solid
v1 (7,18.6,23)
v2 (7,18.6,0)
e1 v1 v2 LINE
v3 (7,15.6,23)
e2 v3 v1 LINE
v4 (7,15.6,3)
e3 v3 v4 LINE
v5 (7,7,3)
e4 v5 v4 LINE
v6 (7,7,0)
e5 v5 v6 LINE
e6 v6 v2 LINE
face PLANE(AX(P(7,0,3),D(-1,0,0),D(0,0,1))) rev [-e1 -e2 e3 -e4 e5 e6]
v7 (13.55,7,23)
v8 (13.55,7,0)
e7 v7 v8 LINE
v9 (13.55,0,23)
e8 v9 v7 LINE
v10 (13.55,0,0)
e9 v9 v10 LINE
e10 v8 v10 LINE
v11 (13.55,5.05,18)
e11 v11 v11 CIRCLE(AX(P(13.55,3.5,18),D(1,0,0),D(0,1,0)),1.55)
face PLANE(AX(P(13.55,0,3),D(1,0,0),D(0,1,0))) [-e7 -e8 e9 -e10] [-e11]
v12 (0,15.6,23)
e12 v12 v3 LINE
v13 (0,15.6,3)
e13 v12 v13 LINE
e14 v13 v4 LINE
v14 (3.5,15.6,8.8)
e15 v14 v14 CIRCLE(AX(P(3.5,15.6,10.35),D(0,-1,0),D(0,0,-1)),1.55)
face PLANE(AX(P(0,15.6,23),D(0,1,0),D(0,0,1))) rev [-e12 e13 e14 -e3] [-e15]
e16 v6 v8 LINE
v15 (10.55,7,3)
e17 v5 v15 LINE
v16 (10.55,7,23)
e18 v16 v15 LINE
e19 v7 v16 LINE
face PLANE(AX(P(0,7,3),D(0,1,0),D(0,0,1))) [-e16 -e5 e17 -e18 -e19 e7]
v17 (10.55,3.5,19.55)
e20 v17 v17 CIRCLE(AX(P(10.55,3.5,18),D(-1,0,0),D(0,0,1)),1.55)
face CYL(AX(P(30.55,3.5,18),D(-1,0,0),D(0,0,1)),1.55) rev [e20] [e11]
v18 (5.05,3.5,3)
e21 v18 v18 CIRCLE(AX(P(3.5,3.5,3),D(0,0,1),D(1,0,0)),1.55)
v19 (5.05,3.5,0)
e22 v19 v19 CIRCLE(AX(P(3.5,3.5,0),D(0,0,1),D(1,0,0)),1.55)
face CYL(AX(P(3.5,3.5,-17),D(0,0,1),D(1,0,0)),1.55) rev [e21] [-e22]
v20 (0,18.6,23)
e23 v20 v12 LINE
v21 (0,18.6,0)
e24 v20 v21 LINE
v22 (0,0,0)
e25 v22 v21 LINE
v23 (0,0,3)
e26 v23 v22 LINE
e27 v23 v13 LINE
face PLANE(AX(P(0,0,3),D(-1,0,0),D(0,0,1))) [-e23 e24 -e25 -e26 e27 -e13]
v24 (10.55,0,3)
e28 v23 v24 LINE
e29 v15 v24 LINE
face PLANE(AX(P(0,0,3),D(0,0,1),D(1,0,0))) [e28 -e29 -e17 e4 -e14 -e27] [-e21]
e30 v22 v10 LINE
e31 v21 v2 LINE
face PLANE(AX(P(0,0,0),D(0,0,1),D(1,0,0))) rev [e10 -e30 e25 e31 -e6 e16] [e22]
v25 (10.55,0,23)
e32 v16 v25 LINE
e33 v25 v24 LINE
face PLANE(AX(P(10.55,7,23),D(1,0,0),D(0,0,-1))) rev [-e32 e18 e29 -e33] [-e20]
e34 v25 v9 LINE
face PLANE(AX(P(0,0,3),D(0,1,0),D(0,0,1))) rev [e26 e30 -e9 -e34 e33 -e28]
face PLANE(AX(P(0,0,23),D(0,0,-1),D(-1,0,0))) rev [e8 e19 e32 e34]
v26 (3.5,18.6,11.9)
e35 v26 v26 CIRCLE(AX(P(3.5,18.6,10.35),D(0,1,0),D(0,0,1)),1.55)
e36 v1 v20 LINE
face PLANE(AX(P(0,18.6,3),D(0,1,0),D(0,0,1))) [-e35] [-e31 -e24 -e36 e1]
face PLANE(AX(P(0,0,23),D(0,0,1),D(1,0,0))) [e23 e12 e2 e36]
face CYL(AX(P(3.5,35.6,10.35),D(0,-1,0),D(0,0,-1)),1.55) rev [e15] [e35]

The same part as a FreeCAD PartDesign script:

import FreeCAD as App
import Part
import Sketcher

V = App.Vector
Q = App.Units.Quantity

doc = App.newDocument("Part")
params = doc.addObject("Spreadsheet::Sheet", "Params")
for row, (alias, value) in enumerate([
    ("sketch1_width", "7 mm"),
    ("sketch1_height", "18.6 mm"),
    ("sketch1_width2", "13.55 mm"),
    ("pad1_length", "3 mm"),
    ("sketch2_width", "7 mm"),
    ("sketch2_height", "3 mm"),
    ("pad2_length", "20 mm"),
    ("sketch3_width", "3 mm"),
    ("sketch3_height", "7 mm"),
    ("pad3_length", "20 mm"),
    ("sketch4_diameter", "3.1 mm"),
    ("pocket1_length", "20 mm"),
    ("sketch5_diameter", "3.1 mm"),
    ("pocket2_length", "20 mm"),
    ("sketch6_diameter", "3.1 mm"),
    ("pocket3_length", "20 mm"),
], start=1):
    params.set(f"A{row}", alias)
    params.set(f"B{row}", "=" + value)
    params.setAlias(f"B{row}", alias)

body = doc.addObject("PartDesign::Body", "Body")

sketch1 = body.newObject("Sketcher::SketchObject", "Sketch")
sketch1.AttachmentSupport = (doc.getObject("XY_Plane"), [""])
sketch1.MapMode = "FlatFace"
sketch1.addGeometry([
    Part.LineSegment(V(0, 19, 0), V(0, 0, 0)),
    Part.LineSegment(V(0, 0, 0), V(14, 0, 0)),
    Part.LineSegment(V(14, 0, 0), V(14, 7, 0)),
    Part.LineSegment(V(14, 7, 0), V(7, 7, 0)),
    Part.LineSegment(V(7, 7, 0), V(7, 19, 0)),
    Part.LineSegment(V(7, 19, 0), V(0, 19, 0)),
], False)
sketch1.addConstraint([
    Sketcher.Constraint("Coincident", 0, 2, 1, 1),
    Sketcher.Constraint("Coincident", 1, 2, 2, 1),
    Sketcher.Constraint("Coincident", 2, 2, 3, 1),
    Sketcher.Constraint("Coincident", 3, 2, 4, 1),
    Sketcher.Constraint("Coincident", 4, 2, 5, 1),
    Sketcher.Constraint("Coincident", 5, 2, 0, 1),
    Sketcher.Constraint("Vertical", 0),
    Sketcher.Constraint("Horizontal", 1),
    Sketcher.Constraint("Vertical", 2),
    Sketcher.Constraint("Horizontal", 3),
    Sketcher.Constraint("Vertical", 4),
    Sketcher.Constraint("Horizontal", 5),
    Sketcher.Constraint("Coincident", 0, 2, -1, 1),
    Sketcher.Constraint("Equal", 5, 2),
    Sketcher.Constraint("DistanceX", 5, 2, 5, 1, Q("7 mm")),
    Sketcher.Constraint("DistanceY", 0, 2, 0, 1, Q("18.6 mm")),
    Sketcher.Constraint("DistanceX", 1, 1, 1, 2, Q("13.55 mm")),
])
sketch1.setExpression("Constraints[14]", "Params.sketch1_width")
sketch1.setExpression("Constraints[15]", "Params.sketch1_height")
sketch1.setExpression("Constraints[16]", "Params.sketch1_width2")
pad1 = body.newObject("PartDesign::Pad", "Pad")
pad1.Profile = sketch1
pad1.setExpression("Length", "Params.pad1_length")

sketch2 = body.newObject("Sketcher::SketchObject", "Sketch001")
sketch2.AttachmentSupport = (doc.getObject("XY_Plane"), [""])
sketch2.MapMode = "FlatFace"
sketch2.AttachmentOffset = App.Placement(V(0, 0, 3), App.Rotation())
sketch2.addGeometry([
    Part.LineSegment(V(0, 18.6, 0), V(0, 15.6, 0)),
    Part.LineSegment(V(0, 15.6, 0), V(7, 15.6, 0)),
    Part.LineSegment(V(7, 15.6, 0), V(7, 18.6, 0)),
    Part.LineSegment(V(7, 18.6, 0), V(0, 18.6, 0)),
], False)
sketch2.addConstraint([
    Sketcher.Constraint("Coincident", 0, 2, 1, 1),
    Sketcher.Constraint("Coincident", 1, 2, 2, 1),
    Sketcher.Constraint("Coincident", 2, 2, 3, 1),
    Sketcher.Constraint("Coincident", 3, 2, 0, 1),
    Sketcher.Constraint("Vertical", 0),
    Sketcher.Constraint("Horizontal", 1),
    Sketcher.Constraint("Vertical", 2),
    Sketcher.Constraint("Horizontal", 3),
    Sketcher.Constraint("PointOnObject", 0, 2, -2),
    Sketcher.Constraint("DistanceX", 1, 1, 1, 2, Q("7 mm")),
    Sketcher.Constraint("DistanceY", 0, 2, 0, 1, Q("3 mm")),
    Sketcher.Constraint("DistanceY", -1, 1, 0, 2, Q("15.6 mm")),
])
sketch2.setExpression("Constraints[9]", "Params.sketch2_width")
sketch2.setExpression("Constraints[10]", "Params.sketch2_height")
pad2 = body.newObject("PartDesign::Pad", "Pad001")
pad2.Profile = sketch2
pad2.setExpression("Length", "Params.pad2_length")

sketch3 = body.newObject("Sketcher::SketchObject", "Sketch002")
sketch3.AttachmentSupport = (doc.getObject("XY_Plane"), [""])
sketch3.MapMode = "FlatFace"
sketch3.AttachmentOffset = App.Placement(V(0, 0, 3), App.Rotation())
sketch3.addGeometry([
    Part.LineSegment(V(10.6, 7, 0), V(10.6, 0, 0)),
    Part.LineSegment(V(10.6, 0, 0), V(13.6, 0, 0)),
    Part.LineSegment(V(13.6, 0, 0), V(13.6, 7, 0)),
    Part.LineSegment(V(13.6, 7, 0), V(10.6, 7, 0)),
], False)
sketch3.addConstraint([
    Sketcher.Constraint("Coincident", 0, 2, 1, 1),
    Sketcher.Constraint("Coincident", 1, 2, 2, 1),
    Sketcher.Constraint("Coincident", 2, 2, 3, 1),
    Sketcher.Constraint("Coincident", 3, 2, 0, 1),
    Sketcher.Constraint("Vertical", 0),
    Sketcher.Constraint("Horizontal", 1),
    Sketcher.Constraint("Vertical", 2),
    Sketcher.Constraint("Horizontal", 3),
    Sketcher.Constraint("PointOnObject", 0, 2, -1),
    Sketcher.Constraint("DistanceX", 1, 1, 1, 2, Q("3 mm")),
    Sketcher.Constraint("DistanceY", 0, 2, 0, 1, Q("7 mm")),
    Sketcher.Constraint("DistanceX", -1, 1, 0, 2, Q("10.55 mm")),
])
sketch3.setExpression("Constraints[9]", "Params.sketch3_width")
sketch3.setExpression("Constraints[10]", "Params.sketch3_height")
pad3 = body.newObject("PartDesign::Pad", "Pad002")
pad3.Profile = sketch3
pad3.setExpression("Length", "Params.pad3_length")

sketch4 = body.newObject("Sketcher::SketchObject", "Sketch003")
sketch4.AttachmentSupport = (doc.getObject("XZ_Plane"), [""])
sketch4.MapMode = "FlatFace"
sketch4.AttachmentOffset = App.Placement(V(0, 0, -15.6), App.Rotation())
sketch4.addGeometry(Part.Circle(V(3.5, 10.3, 0), V(0, 0, 1), 1.6), False)
sketch4.addConstraint([
    Sketcher.Constraint("Diameter", 0, Q("3.1 mm")),
    Sketcher.Constraint("DistanceX", -1, 1, 0, 3, Q("3.5 mm")),
    Sketcher.Constraint("DistanceY", -1, 1, 0, 3, Q("10.35 mm")),
])
sketch4.setExpression("Constraints[0]", "Params.sketch4_diameter")
pocket1 = body.newObject("PartDesign::Pocket", "Pocket")
pocket1.Profile = sketch4
pocket1.setExpression("Length", "Params.pocket1_length")

sketch5 = body.newObject("Sketcher::SketchObject", "Sketch004")
sketch5.AttachmentSupport = (doc.getObject("YZ_Plane"), [""])
sketch5.MapMode = "FlatFace"
sketch5.AttachmentOffset = App.Placement(V(0, 0, 10.55), App.Rotation())
sketch5.addGeometry(Part.Circle(V(3.5, 18, 0), V(0, 0, 1), 1.6), False)
sketch5.addConstraint([
    Sketcher.Constraint("Diameter", 0, Q("3.1 mm")),
    Sketcher.Constraint("DistanceY", -1, 1, 0, 3, Q("18 mm")),
    Sketcher.Constraint("DistanceX", -1, 1, 0, 3, Q("3.5 mm")),
])
sketch5.setExpression("Constraints[0]", "Params.sketch5_diameter")
pocket2 = body.newObject("PartDesign::Pocket", "Pocket001")
pocket2.Profile = sketch5
pocket2.setExpression("Length", "Params.pocket2_length")
pocket2.Reversed = True

sketch6 = body.newObject("Sketcher::SketchObject", "Sketch005")
sketch6.AttachmentSupport = (doc.getObject("XY_Plane"), [""])
sketch6.MapMode = "FlatFace"
sketch6.AttachmentOffset = App.Placement(V(0, 0, 3), App.Rotation())
sketch6.addGeometry(Part.Circle(V(3.5, 3.5, 0), V(0, 0, 1), 1.6), False)
sketch6.addConstraint([
    Sketcher.Constraint("Diameter", 0, Q("3.1 mm")),
    Sketcher.Constraint("DistanceX", -1, 1, 0, 3, Q("3.5 mm")),
    Sketcher.Constraint("DistanceY", -1, 1, 0, 3, Q("3.5 mm")),
])
sketch6.setExpression("Constraints[0]", "Params.sketch6_diameter")
pocket3 = body.newObject("PartDesign::Pocket", "Pocket002")
pocket3.Profile = sketch6
pocket3.setExpression("Length", "Params.pocket3_length")

doc.recompute()
